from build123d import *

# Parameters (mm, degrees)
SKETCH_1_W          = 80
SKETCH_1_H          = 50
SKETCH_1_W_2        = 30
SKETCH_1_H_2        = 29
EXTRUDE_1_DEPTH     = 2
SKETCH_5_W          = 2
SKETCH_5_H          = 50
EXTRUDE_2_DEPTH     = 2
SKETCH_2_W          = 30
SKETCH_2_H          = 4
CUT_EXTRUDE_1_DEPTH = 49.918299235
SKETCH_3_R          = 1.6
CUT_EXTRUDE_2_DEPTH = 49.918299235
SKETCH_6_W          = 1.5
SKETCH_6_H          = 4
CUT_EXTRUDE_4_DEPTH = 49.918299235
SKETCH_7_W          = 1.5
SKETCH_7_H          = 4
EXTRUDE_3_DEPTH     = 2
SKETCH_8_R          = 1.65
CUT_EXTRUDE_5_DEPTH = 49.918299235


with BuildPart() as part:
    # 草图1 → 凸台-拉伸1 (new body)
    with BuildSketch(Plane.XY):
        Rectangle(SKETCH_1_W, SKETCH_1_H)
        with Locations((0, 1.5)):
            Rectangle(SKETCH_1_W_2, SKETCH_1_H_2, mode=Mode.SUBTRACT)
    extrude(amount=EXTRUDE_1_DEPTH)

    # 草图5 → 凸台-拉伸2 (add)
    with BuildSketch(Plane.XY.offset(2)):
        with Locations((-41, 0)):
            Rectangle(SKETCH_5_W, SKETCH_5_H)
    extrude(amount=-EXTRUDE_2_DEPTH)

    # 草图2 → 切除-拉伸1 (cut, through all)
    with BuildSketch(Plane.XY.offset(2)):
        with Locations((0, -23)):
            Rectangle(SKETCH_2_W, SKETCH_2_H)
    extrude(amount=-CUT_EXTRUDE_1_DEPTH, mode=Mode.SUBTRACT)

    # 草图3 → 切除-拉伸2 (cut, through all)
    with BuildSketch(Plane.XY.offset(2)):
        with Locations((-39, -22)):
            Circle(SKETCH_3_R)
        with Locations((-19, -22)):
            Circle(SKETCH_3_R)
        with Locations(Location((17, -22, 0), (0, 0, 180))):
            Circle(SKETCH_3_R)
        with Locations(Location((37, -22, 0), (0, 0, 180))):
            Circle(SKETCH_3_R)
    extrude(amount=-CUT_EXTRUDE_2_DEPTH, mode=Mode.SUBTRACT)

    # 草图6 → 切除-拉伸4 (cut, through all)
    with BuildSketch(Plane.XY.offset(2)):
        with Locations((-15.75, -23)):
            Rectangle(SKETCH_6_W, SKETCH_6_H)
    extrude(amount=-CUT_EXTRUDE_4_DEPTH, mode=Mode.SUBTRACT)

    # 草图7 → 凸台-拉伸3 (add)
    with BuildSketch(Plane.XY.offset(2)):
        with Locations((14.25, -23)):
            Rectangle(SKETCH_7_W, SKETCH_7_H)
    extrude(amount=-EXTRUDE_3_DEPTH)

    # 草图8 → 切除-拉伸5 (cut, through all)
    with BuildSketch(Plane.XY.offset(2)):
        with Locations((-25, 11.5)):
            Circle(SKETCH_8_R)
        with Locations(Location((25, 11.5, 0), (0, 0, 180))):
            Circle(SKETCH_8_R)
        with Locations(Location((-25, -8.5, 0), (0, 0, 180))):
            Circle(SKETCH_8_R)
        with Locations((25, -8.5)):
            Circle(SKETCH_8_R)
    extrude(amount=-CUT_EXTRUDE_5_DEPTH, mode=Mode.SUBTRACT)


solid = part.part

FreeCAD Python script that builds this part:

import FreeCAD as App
import Part
import Sketcher

doc = App.newDocument("Part")
params = doc.addObject("Spreadsheet::Sheet", "Params")
for row, (alias, value) in enumerate([
    ("sketch1_width", "80 mm"),
    ("sketch1_width2", "30 mm"),
    ("sketch1_height", "50 mm"),
    ("sketch1_height2", "29 mm"),
    ("pad1_length", "2 mm"),
    ("sketch2_width", "2 mm"),
    ("sketch2_height", "50 mm"),
    ("pad2_length", "2 mm"),
    ("sketch3_width", "30 mm"),
    ("sketch3_height", "4 mm"),
    ("sketch4_diameter", "3.2 mm"),
    ("sketch5_height", "4 mm"),
    ("sketch5_width", "1.5 mm"),
    ("sketch6_height", "4 mm"),
    ("sketch6_width", "1.5 mm"),
    ("pad3_length", "2 mm"),
    ("sketch7_diameter", "3.3 mm"),
], start=1):
    params.set(f"A{row}", alias)
    params.set(f"B{row}", "=" + value)
    params.setAlias(f"B{row}", alias)

body = doc.addObject("PartDesign::Body", "Body")

# Sketch on XY plane
sketch1 = body.newObject("Sketcher::SketchObject", "Sketch")
sketch1.AttachmentSupport = (doc.getObject("XY_Plane"), [""])
sketch1.MapMode = "FlatFace"
sketch1.addGeometry([
    Part.LineSegment(App.Vector(-40, 25, 0), App.Vector(-40, -25, 0)),  # 0
    Part.LineSegment(App.Vector(-40, -25, 0), App.Vector(40, -25, 0)),  # 1
    Part.LineSegment(App.Vector(40, -25, 0), App.Vector(40, 25, 0)),  # 2
    Part.LineSegment(App.Vector(40, 25, 0), App.Vector(-40, 25, 0)),  # 3
    Part.LineSegment(App.Vector(15, -13, 0), App.Vector(-15, -13, 0)),  # 4
    Part.LineSegment(App.Vector(-15, -13, 0), App.Vector(-15, 16, 0)),  # 5
    Part.LineSegment(App.Vector(-15, 16, 0), App.Vector(15, 16, 0)),  # 6
    Part.LineSegment(App.Vector(15, 16, 0), App.Vector(15, -13, 0)),  # 7
], False)
sketch1.addConstraint([
    Sketcher.Constraint("Coincident", 0, 2, 1, 1),
    Sketcher.Constraint("Coincident", 1, 2, 2, 1),
    Sketcher.Constraint("Coincident", 2, 2, 3, 1),
    Sketcher.Constraint("Coincident", 3, 2, 0, 1),
    Sketcher.Constraint("Coincident", 4, 2, 5, 1),
    Sketcher.Constraint("Coincident", 5, 2, 6, 1),
    Sketcher.Constraint("Coincident", 6, 2, 7, 1),
    Sketcher.Constraint("Coincident", 7, 2, 4, 1),
    Sketcher.Constraint("Vertical", 0),
    Sketcher.Constraint("Horizontal", 1),
    Sketcher.Constraint("Vertical", 2),
    Sketcher.Constraint("Horizontal", 3),
    Sketcher.Constraint("Horizontal", 4),
    Sketcher.Constraint("Vertical", 5),
    Sketcher.Constraint("Horizontal", 6),
    Sketcher.Constraint("Vertical", 7),
    Sketcher.Constraint("Symmetric", 0, 2, 2, 2, -1, 1),
    Sketcher.Constraint("DistanceX", 1, 1, 1, 2, 80.0),
    Sketcher.Constraint("DistanceX", 4, 2, 4, 1, 30.0),
    Sketcher.Constraint("DistanceY", 0, 2, 0, 1, 50.0),
    Sketcher.Constraint("DistanceY", 5, 1, 5, 2, 29.0),
    Sketcher.Constraint("DistanceX", 4, 2, -1, 1, 15.0),
    Sketcher.Constraint("DistanceY", 4, 2, -1, 1, 13.0),
])
sketch1.setExpression("Constraints[17]", "Params.sketch1_width")
sketch1.setExpression("Constraints[18]", "Params.sketch1_width2")
sketch1.setExpression("Constraints[19]", "Params.sketch1_height")
sketch1.setExpression("Constraints[20]", "Params.sketch1_height2")
pad1 = body.newObject("PartDesign::Pad", "Pad")
pad1.Profile = sketch1
pad1.setExpression("Length", "Params.pad1_length")

# Sketch on XY plane
sketch2 = body.newObject("Sketcher::SketchObject", "Sketch001")
sketch2.AttachmentSupport = (doc.getObject("XY_Plane"), [""])
sketch2.MapMode = "FlatFace"
sketch2.AttachmentOffset = App.Placement(App.Vector(0, 0, 2), App.Rotation())
sketch2.addGeometry([
    Part.LineSegment(App.Vector(-42, 25, 0), App.Vector(-42, -25, 0)),
    Part.LineSegment(App.Vector(-42, -25, 0), App.Vector(-40, -25, 0)),
    Part.LineSegment(App.Vector(-40, -25, 0), App.Vector(-40, 25, 0)),
    Part.LineSegment(App.Vector(-40, 25, 0), App.Vector(-42, 25, 0)),
], False)
sketch2.addConstraint([
    Sketcher.Constraint("Coincident", 0, 2, 1, 1),
    Sketcher.Constraint("Coincident", 1, 2, 2, 1),
    Sketcher.Constraint("Coincident", 2, 2, 3, 1),
    Sketcher.Constraint("Coincident", 3, 2, 0, 1),
    Sketcher.Constraint("Vertical", 0),
    Sketcher.Constraint("Horizontal", 1),
    Sketcher.Constraint("Vertical", 2),
    Sketcher.Constraint("Horizontal", 3),
    Sketcher.Constraint("DistanceX", 1, 1, 1, 2, 2.0),
    Sketcher.Constraint("DistanceY", 0, 2, 0, 1, 50.0),
    Sketcher.Constraint("DistanceX", 0, 2, -1, 1, 42.0),
    Sketcher.Constraint("DistanceY", 0, 2, -1, 1, 25.0),
])
sketch2.setExpression("Constraints[8]", "Params.sketch2_width")
sketch2.setExpression("Constraints[9]", "Params.sketch2_height")
pad2 = body.newObject("PartDesign::Pad", "Pad001")
pad2.Profile = sketch2
pad2.setExpression("Length", "Params.pad2_length")
pad2.Reversed = True

# Sketch on XY plane
sketch3 = body.newObject("Sketcher::SketchObject", "Sketch002")
sketch3.AttachmentSupport = (doc.getObject("XY_Plane"), [""])
sketch3.MapMode = "FlatFace"
sketch3.AttachmentOffset = App.Placement(App.Vector(0, 0, 2), App.Rotation())
sketch3.addGeometry([
    Part.LineSegment(App.Vector(-15, -21, 0), App.Vector(-15, -25, 0)),
    Part.LineSegment(App.Vector(-15, -25, 0), App.Vector(15, -25, 0)),
    Part.LineSegment(App.Vector(15, -25, 0), App.Vector(15, -21, 0)),
    Part.LineSegment(App.Vector(15, -21, 0), App.Vector(-15, -21, 0)),
], False)
sketch3.addConstraint([
    Sketcher.Constraint("Coincident", 0, 2, 1, 1),
    Sketcher.Constraint("Coincident", 1, 2, 2, 1),
    Sketcher.Constraint("Coincident", 2, 2, 3, 1),
    Sketcher.Constraint("Coincident", 3, 2, 0, 1),
    Sketcher.Constraint("Vertical", 0),
    Sketcher.Constraint("Horizontal", 1),
    Sketcher.Constraint("Vertical", 2),
    Sketcher.Constraint("Horizontal", 3),
    Sketcher.Constraint("DistanceX", 1, 1, 1, 2, 30.0),
    Sketcher.Constraint("DistanceY", 0, 2, 0, 1, 4.0),
    Sketcher.Constraint("DistanceX", 0, 2, -1, 1, 15.0),
    Sketcher.Constraint("DistanceY", 0, 2, -1, 1, 25.0),
])
sketch3.setExpression("Constraints[8]", "Params.sketch3_width")
sketch3.setExpression("Constraints[9]", "Params.sketch3_height")
pocket1 = body.newObject("PartDesign::Pocket", "Pocket")
pocket1.Profile = sketch3
pocket1.Type = "ThroughAll"

# Sketch on XY plane
sketch4 = body.newObject("Sketcher::SketchObject", "Sketch003")
sketch4.AttachmentSupport = (doc.getObject("XY_Plane"), [""])
sketch4.MapMode = "FlatFace"
sketch4.AttachmentOffset = App.Placement(App.Vector(0, 0, 2), App.Rotation())
sketch4.addGeometry([
    Part.Circle(App.Vector(-39, -22, 0), App.Vector(0, 0, 1), 1.6),
    Part.Circle(App.Vector(-19, -22, 0), App.Vector(0, 0, 1), 1.6),
    Part.Circle(App.Vector(17, -22, 0), App.Vector(0, 0, 1), 1.6),
    Part.Circle(App.Vector(37, -22, 0), App.Vector(0, 0, 1), 1.6),
], False)
sketch4.addConstraint([
    Sketcher.Constraint("Equal", 0, 1),
    Sketcher.Constraint("Equal", 1, 2),
    Sketcher.Constraint("Equal", 2, 3),
    Sketcher.Constraint("Horizontal", 0, 3, 1, 3),
    Sketcher.Constraint("Horizontal", 1, 3, 2, 3),
    Sketcher.Constraint("Horizontal", 2, 3, 3, 3),
    Sketcher.Constraint("Diameter", 0, 3.2),
    Sketcher.Constraint("DistanceX", 0, 3, -1, 1, 39.0),
    Sketcher.Constraint("DistanceY", 0, 3, -1, 1, 22.0),
    Sketcher.Constraint("DistanceX", 1, 3, -1, 1, 19.0),
    Sketcher.Constraint("DistanceX", -1, 1, 2, 3, 17.0),
    Sketcher.Constraint("DistanceX", -1, 1, 3, 3, 37.0),
])
sketch4.setExpression("Constraints[6]", "Params.sketch4_diameter")
pocket2 = body.newObject("PartDesign::Pocket", "Pocket001")
pocket2.Profile = sketch4
pocket2.Type = "ThroughAll"

# Sketch on XY plane
sketch5 = body.newObject("Sketcher::SketchObject", "Sketch004")
sketch5.AttachmentSupport = (doc.getObject("XY_Plane"), [""])
sketch5.MapMode = "FlatFace"
sketch5.AttachmentOffset = App.Placement(App.Vector(0, 0, 2), App.Rotation())
sketch5.addGeometry([
    Part.LineSegment(App.Vector(-16.5, -21, 0), App.Vector(-16.5, -25, 0)),
    Part.LineSegment(App.Vector(-16.5, -25, 0), App.Vector(-15, -25, 0)),
    Part.LineSegment(App.Vector(-15, -25, 0), App.Vector(-15, -21, 0)),
    Part.LineSegment(App.Vector(-15, -21, 0), App.Vector(-16.5, -21, 0)),
], False)
sketch5.addConstraint([
    Sketcher.Constraint("Coincident", 0, 2, 1, 1),
    Sketcher.Constraint("Coincident", 1, 2, 2, 1),
    Sketcher.Constraint("Coincident", 2, 2, 3, 1),
    Sketcher.Constraint("Coincident", 3, 2, 0, 1),
    Sketcher.Constraint("Vertical", 0),
    Sketcher.Constraint("Horizontal", 1),
    Sketcher.Constraint("Vertical", 2),
    Sketcher.Constraint("Horizontal", 3),
    Sketcher.Constraint("DistanceY", 0, 2, 0, 1, 4.0),
    Sketcher.Constraint("DistanceX", 1, 1, 1, 2, 1.5),
    Sketcher.Constraint("DistanceY", 0, 2, -1, 1, 25.0),
    Sketcher.Constraint("DistanceX", 1, 2, -1, 1, 15.0),
])
sketch5.setExpression("Constraints[8]", "Params.sketch5_height")
sketch5.setExpression("Constraints[9]", "Params.sketch5_width")
pocket3 = body.newObject("PartDesign::Pocket", "Pocket002")
pocket3.Profile = sketch5
pocket3.Type = "ThroughAll"

# Sketch on XY plane
sketch6 = body.newObject("Sketcher::SketchObject", "Sketch005")
sketch6.AttachmentSupport = (doc.getObject("XY_Plane"), [""])
sketch6.MapMode = "FlatFace"
sketch6.AttachmentOffset = App.Placement(App.Vector(0, 0, 2), App.Rotation())
sketch6.addGeometry([
    Part.LineSegment(App.Vector(13.5, -21, 0), App.Vector(13.5, -25, 0)),
    Part.LineSegment(App.Vector(13.5, -25, 0), App.Vector(15, -25, 0)),
    Part.LineSegment(App.Vector(15, -25, 0), App.Vector(15, -21, 0)),
    Part.LineSegment(App.Vector(15, -21, 0), App.Vector(13.5, -21, 0)),
], False)
sketch6.addConstraint([
    Sketcher.Constraint("Coincident", 0, 2, 1, 1),
    Sketcher.Constraint("Coincident", 1, 2, 2, 1),
    Sketcher.Constraint("Coincident", 2, 2, 3, 1),
    Sketcher.Constraint("Coincident", 3, 2, 0, 1),
    Sketcher.Constraint("Vertical", 0),
    Sketcher.Constraint("Horizontal", 1),
    Sketcher.Constraint("Vertical", 2),
    Sketcher.Constraint("Horizontal", 3),
    Sketcher.Constraint("DistanceY", 0, 2, 0, 1, 4.0),
    Sketcher.Constraint("DistanceX", 1, 1, 1, 2, 1.5),
    Sketcher.Constraint("DistanceY", 0, 2, -1, 1, 25.0),
    Sketcher.Constraint("DistanceX", -1, 1, 1, 2, 15.0),
])
sketch6.setExpression("Constraints[8]", "Params.sketch6_height")
sketch6.setExpression("Constraints[9]", "Params.sketch6_width")
pad3 = body.newObject("PartDesign::Pad", "Pad002")
pad3.Profile = sketch6
pad3.setExpression("Length", "Params.pad3_length")
pad3.Reversed = True

# Sketch on XY plane
sketch7 = body.newObject("Sketcher::SketchObject", "Sketch006")
sketch7.AttachmentSupport = (doc.getObject("XY_Plane"), [""])
sketch7.MapMode = "FlatFace"
sketch7.AttachmentOffset = App.Placement(App.Vector(0, 0, 2), App.Rotation())
sketch7.addGeometry([
    Part.Circle(App.Vector(-25, 11.5, 0), App.Vector(0, 0, 1), 1.65),
    Part.Circle(App.Vector(25, 11.5, 0), App.Vector(0, 0, 1), 1.65),
    Part.Circle(App.Vector(-25, -8.5, 0), App.Vector(0, 0, 1), 1.65),
    Part.Circle(App.Vector(25, -8.5, 0), App.Vector(0, 0, 1), 1.65),
], False)
sketch7.addConstraint([
    Sketcher.Constraint("Equal", 0, 1),
    Sketcher.Constraint("Equal", 1, 2),
    Sketcher.Constraint("Equal", 2, 3),
    Sketcher.Constraint("Symmetric", 0, 3, 1, 3, -2),
    Sketcher.Constraint("Symmetric", 2, 3, 3, 3, -2),
    Sketcher.Constraint("Vertical", 0, 3, 2, 3),
    Sketcher.Constraint("Diameter", 0, 3.3),
    Sketcher.Constraint("DistanceX", 0, 3, -1, 1, 25.0),
    Sketcher.Constraint("DistanceY", 2, 3, 0, 3, 20.0),
    Sketcher.Constraint("DistanceY", -1, 1, 0, 3, 11.5),
])
sketch7.setExpression("Constraints[6]", "Params.sketch7_diameter")
pocket4 = body.newObject("PartDesign::Pocket", "Pocket003")
pocket4.Profile = sketch7
pocket4.Type = "ThroughAll"

doc.recompute()
